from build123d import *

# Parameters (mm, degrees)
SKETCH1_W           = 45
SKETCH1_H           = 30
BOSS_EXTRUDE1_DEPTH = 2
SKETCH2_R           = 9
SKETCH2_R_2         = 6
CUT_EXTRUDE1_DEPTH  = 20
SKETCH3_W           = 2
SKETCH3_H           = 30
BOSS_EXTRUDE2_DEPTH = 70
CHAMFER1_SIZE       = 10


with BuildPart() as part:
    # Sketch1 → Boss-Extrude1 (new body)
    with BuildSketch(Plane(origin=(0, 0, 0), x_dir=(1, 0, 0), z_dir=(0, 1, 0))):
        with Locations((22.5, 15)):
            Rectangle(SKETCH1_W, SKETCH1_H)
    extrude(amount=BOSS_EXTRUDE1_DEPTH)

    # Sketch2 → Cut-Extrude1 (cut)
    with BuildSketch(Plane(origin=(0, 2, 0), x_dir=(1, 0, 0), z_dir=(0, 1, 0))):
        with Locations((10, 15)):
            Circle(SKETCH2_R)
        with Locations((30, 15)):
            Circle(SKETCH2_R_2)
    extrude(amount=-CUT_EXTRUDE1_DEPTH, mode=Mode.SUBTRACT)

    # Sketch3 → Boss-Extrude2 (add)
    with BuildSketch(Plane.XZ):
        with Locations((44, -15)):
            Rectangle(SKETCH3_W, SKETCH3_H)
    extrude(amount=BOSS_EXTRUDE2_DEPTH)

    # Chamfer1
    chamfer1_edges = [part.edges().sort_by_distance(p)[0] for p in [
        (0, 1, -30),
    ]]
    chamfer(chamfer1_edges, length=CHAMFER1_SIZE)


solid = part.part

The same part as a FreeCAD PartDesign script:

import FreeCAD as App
import Part
import Sketcher
from FreeCAD import Vector


def edges_at(feature, points):
    """Names of the edges that pass closest to the given points."""
    edges = feature.Shape.Edges
    near = lambda p: min(range(len(edges)), key=lambda i: edges[i].distToShape(Part.Vertex(*p))[0])
    return sorted({f"Edge{near(p) + 1}" for p in points})


def add_polygon(sketch, points):
    """Adds a closed chain of lines whose ends are joined by coincident constraints."""
    first, n = sketch.GeometryCount, len(points)
    for a, b in zip(points, points[1:] + points[:1]):
        sketch.addGeometry(Part.LineSegment(App.Vector(*a, 0), App.Vector(*b, 0)), False)
    for i in range(n):
        sketch.addConstraint(Sketcher.Constraint("Coincident", first + i, 2, first + (i + 1) % n, 1))

doc = App.newDocument("Part")
body = doc.addObject("PartDesign::Body", "Body")

sketch1 = body.newObject("Sketcher::SketchObject", "Sketch")
sketch1.AttachmentSupport = (doc.getObject("XZ_Plane"), [""])
sketch1.MapMode = "FlatFace"
add_polygon(sketch1, [(0, -30), (0, 0), (45, 0), (45, -30)])
sketch1.addConstraint(Sketcher.Constraint("Vertical", 0))
sketch1.addConstraint(Sketcher.Constraint("Horizontal", 1))
sketch1.addConstraint(Sketcher.Constraint("Vertical", 2))
sketch1.addConstraint(Sketcher.Constraint("Horizontal", 3))
sketch1.addConstraint(Sketcher.Constraint("Coincident", 0, 2, -1, 1))
sketch1.addConstraint(Sketcher.Constraint("DistanceX", 1, 1, 1, 2, 45.0))
sketch1.addConstraint(Sketcher.Constraint("DistanceY", 0, 1, 0, 2, 30.0))
pad1 = body.newObject("PartDesign::Pad", "Pad")
pad1.Profile = sketch1
pad1.Length = 2
pad1.Reversed = True

sketch2 = body.newObject("Sketcher::SketchObject", "Sketch001")
sketch2.AttachmentSupport = (doc.getObject("XZ_Plane"), [""])
sketch2.MapMode = "FlatFace"
sketch2.AttachmentOffset = App.Placement(Vector(0, 0, -2), App.Rotation())
sketch2.addGeometry(Part.Circle(Vector(10, -15, 0), Vector(0, 0, 1), 9), False)
sketch2.addGeometry(Part.Circle(Vector(30, -15, 0), Vector(0, 0, 1), 6), False)
sketch2.addConstraint(Sketcher.Constraint("Horizontal", 0, 3, 1, 3))
sketch2.addConstraint(Sketcher.Constraint("Diameter", 0, 18.0))
sketch2.addConstraint(Sketcher.Constraint("Diameter", 1, 12.0))
sketch2.addConstraint(Sketcher.Constraint("DistanceX", -1, 1, 0, 3, 10.0))
sketch2.addConstraint(Sketcher.Constraint("DistanceY", 0, 3, -1, 1, 15.0))
sketch2.addConstraint(Sketcher.Constraint("DistanceX", -1, 1, 1, 3, 30.0))
pocket1 = body.newObject("PartDesign::Pocket", "Pocket")
pocket1.Profile = sketch2
pocket1.Length = 20
pocket1.Reversed = True

sketch3 = body.newObject("Sketcher::SketchObject", "Sketch002")
sketch3.AttachmentSupport = (doc.getObject("XZ_Plane"), [""])
sketch3.MapMode = "FlatFace"
add_polygon(sketch3, [(43, 0), (43, -30), (45, -30), (45, 0)])
sketch3.addConstraint(Sketcher.Constraint("Vertical", 0))
sketch3.addConstraint(Sketcher.Constraint("Horizontal", 1))
sketch3.addConstraint(Sketcher.Constraint("Vertical", 2))
sketch3.addConstraint(Sketcher.Constraint("Horizontal", 3))
sketch3.addConstraint(Sketcher.Constraint("PointOnObject", 2, 2, -1))
sketch3.addConstraint(Sketcher.Constraint("DistanceX", 1, 1, 1, 2, 2.0))
sketch3.addConstraint(Sketcher.Constraint("DistanceY", 0, 2, 0, 1, 30.0))
sketch3.addConstraint(Sketcher.Constraint("DistanceX", -1, 1, 0, 2, 43.0))
pad2 = body.newObject("PartDesign::Pad", "Pad001")
pad2.Profile = sketch3
pad2.Length = 70
doc.recompute()

chamfer = body.newObject("PartDesign::Chamfer", "Chamfer")
chamfer.Base = (pad2, edges_at(pad2, [(0, 1, -30)]))
chamfer.Size = 10

doc.recompute()
